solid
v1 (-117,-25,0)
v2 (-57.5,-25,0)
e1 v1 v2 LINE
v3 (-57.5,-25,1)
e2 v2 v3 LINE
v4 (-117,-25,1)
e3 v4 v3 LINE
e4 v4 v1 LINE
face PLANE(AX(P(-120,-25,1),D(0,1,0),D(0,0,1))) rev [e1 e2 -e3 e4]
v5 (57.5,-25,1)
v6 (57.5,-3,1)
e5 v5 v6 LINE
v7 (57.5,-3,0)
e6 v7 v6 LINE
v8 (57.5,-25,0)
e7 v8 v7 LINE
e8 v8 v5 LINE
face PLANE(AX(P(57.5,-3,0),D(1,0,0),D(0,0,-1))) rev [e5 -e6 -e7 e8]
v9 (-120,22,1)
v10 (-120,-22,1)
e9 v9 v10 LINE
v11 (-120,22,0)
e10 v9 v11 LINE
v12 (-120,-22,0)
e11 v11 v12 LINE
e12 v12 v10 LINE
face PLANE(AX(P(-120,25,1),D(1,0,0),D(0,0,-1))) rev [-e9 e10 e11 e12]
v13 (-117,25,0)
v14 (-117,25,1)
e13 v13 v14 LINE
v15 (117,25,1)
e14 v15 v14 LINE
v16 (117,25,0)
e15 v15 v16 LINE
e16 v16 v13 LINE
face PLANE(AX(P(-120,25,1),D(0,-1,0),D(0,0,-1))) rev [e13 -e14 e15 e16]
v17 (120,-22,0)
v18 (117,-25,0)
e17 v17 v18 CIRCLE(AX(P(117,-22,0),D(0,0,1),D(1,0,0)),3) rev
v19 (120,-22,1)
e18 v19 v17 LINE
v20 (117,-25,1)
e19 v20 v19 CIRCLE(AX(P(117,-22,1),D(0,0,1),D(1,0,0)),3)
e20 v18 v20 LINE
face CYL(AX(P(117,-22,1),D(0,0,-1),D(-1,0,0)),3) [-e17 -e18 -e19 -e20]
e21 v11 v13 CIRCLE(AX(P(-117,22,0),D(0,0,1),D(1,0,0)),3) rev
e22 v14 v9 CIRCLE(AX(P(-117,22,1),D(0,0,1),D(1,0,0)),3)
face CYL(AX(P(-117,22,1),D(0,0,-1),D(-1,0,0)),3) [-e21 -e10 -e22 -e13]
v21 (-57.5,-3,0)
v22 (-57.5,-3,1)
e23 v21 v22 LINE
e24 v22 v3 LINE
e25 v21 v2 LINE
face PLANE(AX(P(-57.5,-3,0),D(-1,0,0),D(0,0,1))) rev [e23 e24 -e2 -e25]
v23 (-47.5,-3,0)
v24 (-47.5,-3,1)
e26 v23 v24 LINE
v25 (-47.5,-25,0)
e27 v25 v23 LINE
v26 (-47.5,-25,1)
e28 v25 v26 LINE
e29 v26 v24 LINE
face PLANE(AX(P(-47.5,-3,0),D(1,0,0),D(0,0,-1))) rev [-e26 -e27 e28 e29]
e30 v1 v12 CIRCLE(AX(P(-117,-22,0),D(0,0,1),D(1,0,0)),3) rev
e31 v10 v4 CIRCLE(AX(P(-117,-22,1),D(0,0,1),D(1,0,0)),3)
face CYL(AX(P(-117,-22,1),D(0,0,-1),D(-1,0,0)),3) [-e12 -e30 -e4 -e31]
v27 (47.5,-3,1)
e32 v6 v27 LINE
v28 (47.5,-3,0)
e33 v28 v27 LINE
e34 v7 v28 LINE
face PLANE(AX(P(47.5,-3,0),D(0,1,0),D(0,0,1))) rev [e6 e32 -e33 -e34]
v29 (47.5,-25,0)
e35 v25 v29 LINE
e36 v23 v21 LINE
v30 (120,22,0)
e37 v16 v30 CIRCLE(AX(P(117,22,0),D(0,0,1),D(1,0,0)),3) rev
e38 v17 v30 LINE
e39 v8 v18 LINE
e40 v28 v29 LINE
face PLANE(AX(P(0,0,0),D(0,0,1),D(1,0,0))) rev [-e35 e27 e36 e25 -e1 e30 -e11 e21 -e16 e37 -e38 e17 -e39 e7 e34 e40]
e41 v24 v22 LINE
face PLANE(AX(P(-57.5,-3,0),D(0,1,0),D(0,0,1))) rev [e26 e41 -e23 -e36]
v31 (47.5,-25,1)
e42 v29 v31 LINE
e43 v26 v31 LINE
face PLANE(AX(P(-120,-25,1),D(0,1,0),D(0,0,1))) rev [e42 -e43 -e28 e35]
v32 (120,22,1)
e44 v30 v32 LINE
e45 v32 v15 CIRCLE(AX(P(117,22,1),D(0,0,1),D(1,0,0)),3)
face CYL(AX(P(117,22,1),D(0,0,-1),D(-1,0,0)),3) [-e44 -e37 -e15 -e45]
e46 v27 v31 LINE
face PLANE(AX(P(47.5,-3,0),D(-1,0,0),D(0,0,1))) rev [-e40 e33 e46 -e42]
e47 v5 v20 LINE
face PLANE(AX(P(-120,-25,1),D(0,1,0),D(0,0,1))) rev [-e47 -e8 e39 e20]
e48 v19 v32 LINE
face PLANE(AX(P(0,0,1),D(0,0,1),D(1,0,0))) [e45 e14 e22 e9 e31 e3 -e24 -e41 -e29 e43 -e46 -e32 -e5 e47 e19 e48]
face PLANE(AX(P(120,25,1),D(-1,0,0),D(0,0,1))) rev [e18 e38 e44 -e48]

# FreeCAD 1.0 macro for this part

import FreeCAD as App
import Part
import Sketcher

V = App.Vector
Q = App.Units.Quantity


def edges_at(feature, points):
    """Names of the edges that pass closest to the given points."""
    edges = feature.Shape.Edges
    near = lambda p: min(range(len(edges)), key=lambda i: edges[i].distToShape(Part.Vertex(*p))[0])
    return sorted({f"Edge{near(p) + 1}" for p in points})

doc = App.newDocument("Part")
body = doc.addObject("PartDesign::Body", "Body")

sketch1 = body.newObject("Sketcher::SketchObject", "Sketch")
sketch1.AttachmentSupport = (doc.getObject("XY_Plane"), [""])
sketch1.MapMode = "FlatFace"
sketch1.addGeometry([
    Part.LineSegment(V(-120, 25, 0), V(-120, -25, 0)),
    Part.LineSegment(V(-120, -25, 0), V(120, -25, 0)),
    Part.LineSegment(V(120, -25, 0), V(120, 25, 0)),
    Part.LineSegment(V(120, 25, 0), V(-120, 25, 0)),
], False)
sketch1.addConstraint([
    Sketcher.Constraint("Coincident", 0, 2, 1, 1),
    Sketcher.Constraint("Coincident", 1, 2, 2, 1),
    Sketcher.Constraint("Coincident", 2, 2, 3, 1),
    Sketcher.Constraint("Coincident", 3, 2, 0, 1),
    Sketcher.Constraint("Vertical", 0),
    Sketcher.Constraint("Horizontal", 1),
    Sketcher.Constraint("Vertical", 2),
    Sketcher.Constraint("Horizontal", 3),
    Sketcher.Constraint("Symmetric", 0, 2, 2, 2, -1, 1),
    Sketcher.Constraint("DistanceX", 1, 1, 1, 2, Q("240 mm")),
    Sketcher.Constraint("DistanceY", 0, 2, 0, 1, Q("50 mm")),
])
pad1 = body.newObject("PartDesign::Pad", "Pad")
pad1.Profile = sketch1
pad1.Length = 1
doc.recompute()

fillet = body.newObject("PartDesign::Fillet", "Fillet")
fillet.Base = (pad1, edges_at(pad1, [
    (120, -25, 0.5),
    (-120, -25, 0.5),
    (-120, 25, 0.5),
    (120, 25, 0.5),
]))
fillet.Radius = 3

sketch2 = body.newObject("Sketcher::SketchObject", "Sketch001")
sketch2.AttachmentSupport = (doc.getObject("XY_Plane"), [""])
sketch2.MapMode = "FlatFace"
sketch2.AttachmentOffset = App.Placement(V(0, 0, 1), App.Rotation())
sketch2.addGeometry([
    Part.LineSegment(V(-58, -3, 0), V(-58, -25, 0)),
    Part.LineSegment(V(-58, -25, 0), V(-48, -25, 0)),
    Part.LineSegment(V(-48, -25, 0), V(-48, -3, 0)),
    Part.LineSegment(V(-48, -3, 0), V(-58, -3, 0)),
    Part.LineSegment(V(48, -3, 0), V(48, -25, 0)),
    Part.LineSegment(V(48, -25, 0), V(58, -25, 0)),
    Part.LineSegment(V(58, -25, 0), V(58, -3, 0)),
    Part.LineSegment(V(58, -3, 0), V(48, -3, 0)),
], False)
sketch2.addConstraint([
    Sketcher.Constraint("Coincident", 0, 2, 1, 1),
    Sketcher.Constraint("Coincident", 1, 2, 2, 1),
    Sketcher.Constraint("Coincident", 2, 2, 3, 1),
    Sketcher.Constraint("Coincident", 3, 2, 0, 1),
    Sketcher.Constraint("Coincident", 4, 2, 5, 1),
    Sketcher.Constraint("Coincident", 5, 2, 6, 1),
    Sketcher.Constraint("Coincident", 6, 2, 7, 1),
    Sketcher.Constraint("Coincident", 7, 2, 4, 1),
    Sketcher.Constraint("Vertical", 0),
    Sketcher.Constraint("Horizontal", 1),
    Sketcher.Constraint("Vertical", 2),
    Sketcher.Constraint("Horizontal", 3),
    Sketcher.Constraint("Vertical", 4),
    Sketcher.Constraint("Horizontal", 5),
    Sketcher.Constraint("Vertical", 6),
    Sketcher.Constraint("Horizontal", 7),
    Sketcher.Constraint("Symmetric", 1, 2, 4, 2, -2),
    Sketcher.Constraint("Symmetric", 3, 2, 6, 2, -2),
    Sketcher.Constraint("DistanceX", 1, 1, 1, 2, Q("10 mm")),
    Sketcher.Constraint("DistanceY", 0, 2, 0, 1, Q("22 mm")),
    Sketcher.Constraint("DistanceY", 0, 2, -1, 1, Q("25 mm")),
    Sketcher.Constraint("DistanceX", 1, 2, 4, 2, Q("95 mm")),
])
pocket1 = body.newObject("PartDesign::Pocket", "Pocket")
pocket1.Profile = sketch2
pocket1.Type = "ThroughAll"

doc.recompute()
